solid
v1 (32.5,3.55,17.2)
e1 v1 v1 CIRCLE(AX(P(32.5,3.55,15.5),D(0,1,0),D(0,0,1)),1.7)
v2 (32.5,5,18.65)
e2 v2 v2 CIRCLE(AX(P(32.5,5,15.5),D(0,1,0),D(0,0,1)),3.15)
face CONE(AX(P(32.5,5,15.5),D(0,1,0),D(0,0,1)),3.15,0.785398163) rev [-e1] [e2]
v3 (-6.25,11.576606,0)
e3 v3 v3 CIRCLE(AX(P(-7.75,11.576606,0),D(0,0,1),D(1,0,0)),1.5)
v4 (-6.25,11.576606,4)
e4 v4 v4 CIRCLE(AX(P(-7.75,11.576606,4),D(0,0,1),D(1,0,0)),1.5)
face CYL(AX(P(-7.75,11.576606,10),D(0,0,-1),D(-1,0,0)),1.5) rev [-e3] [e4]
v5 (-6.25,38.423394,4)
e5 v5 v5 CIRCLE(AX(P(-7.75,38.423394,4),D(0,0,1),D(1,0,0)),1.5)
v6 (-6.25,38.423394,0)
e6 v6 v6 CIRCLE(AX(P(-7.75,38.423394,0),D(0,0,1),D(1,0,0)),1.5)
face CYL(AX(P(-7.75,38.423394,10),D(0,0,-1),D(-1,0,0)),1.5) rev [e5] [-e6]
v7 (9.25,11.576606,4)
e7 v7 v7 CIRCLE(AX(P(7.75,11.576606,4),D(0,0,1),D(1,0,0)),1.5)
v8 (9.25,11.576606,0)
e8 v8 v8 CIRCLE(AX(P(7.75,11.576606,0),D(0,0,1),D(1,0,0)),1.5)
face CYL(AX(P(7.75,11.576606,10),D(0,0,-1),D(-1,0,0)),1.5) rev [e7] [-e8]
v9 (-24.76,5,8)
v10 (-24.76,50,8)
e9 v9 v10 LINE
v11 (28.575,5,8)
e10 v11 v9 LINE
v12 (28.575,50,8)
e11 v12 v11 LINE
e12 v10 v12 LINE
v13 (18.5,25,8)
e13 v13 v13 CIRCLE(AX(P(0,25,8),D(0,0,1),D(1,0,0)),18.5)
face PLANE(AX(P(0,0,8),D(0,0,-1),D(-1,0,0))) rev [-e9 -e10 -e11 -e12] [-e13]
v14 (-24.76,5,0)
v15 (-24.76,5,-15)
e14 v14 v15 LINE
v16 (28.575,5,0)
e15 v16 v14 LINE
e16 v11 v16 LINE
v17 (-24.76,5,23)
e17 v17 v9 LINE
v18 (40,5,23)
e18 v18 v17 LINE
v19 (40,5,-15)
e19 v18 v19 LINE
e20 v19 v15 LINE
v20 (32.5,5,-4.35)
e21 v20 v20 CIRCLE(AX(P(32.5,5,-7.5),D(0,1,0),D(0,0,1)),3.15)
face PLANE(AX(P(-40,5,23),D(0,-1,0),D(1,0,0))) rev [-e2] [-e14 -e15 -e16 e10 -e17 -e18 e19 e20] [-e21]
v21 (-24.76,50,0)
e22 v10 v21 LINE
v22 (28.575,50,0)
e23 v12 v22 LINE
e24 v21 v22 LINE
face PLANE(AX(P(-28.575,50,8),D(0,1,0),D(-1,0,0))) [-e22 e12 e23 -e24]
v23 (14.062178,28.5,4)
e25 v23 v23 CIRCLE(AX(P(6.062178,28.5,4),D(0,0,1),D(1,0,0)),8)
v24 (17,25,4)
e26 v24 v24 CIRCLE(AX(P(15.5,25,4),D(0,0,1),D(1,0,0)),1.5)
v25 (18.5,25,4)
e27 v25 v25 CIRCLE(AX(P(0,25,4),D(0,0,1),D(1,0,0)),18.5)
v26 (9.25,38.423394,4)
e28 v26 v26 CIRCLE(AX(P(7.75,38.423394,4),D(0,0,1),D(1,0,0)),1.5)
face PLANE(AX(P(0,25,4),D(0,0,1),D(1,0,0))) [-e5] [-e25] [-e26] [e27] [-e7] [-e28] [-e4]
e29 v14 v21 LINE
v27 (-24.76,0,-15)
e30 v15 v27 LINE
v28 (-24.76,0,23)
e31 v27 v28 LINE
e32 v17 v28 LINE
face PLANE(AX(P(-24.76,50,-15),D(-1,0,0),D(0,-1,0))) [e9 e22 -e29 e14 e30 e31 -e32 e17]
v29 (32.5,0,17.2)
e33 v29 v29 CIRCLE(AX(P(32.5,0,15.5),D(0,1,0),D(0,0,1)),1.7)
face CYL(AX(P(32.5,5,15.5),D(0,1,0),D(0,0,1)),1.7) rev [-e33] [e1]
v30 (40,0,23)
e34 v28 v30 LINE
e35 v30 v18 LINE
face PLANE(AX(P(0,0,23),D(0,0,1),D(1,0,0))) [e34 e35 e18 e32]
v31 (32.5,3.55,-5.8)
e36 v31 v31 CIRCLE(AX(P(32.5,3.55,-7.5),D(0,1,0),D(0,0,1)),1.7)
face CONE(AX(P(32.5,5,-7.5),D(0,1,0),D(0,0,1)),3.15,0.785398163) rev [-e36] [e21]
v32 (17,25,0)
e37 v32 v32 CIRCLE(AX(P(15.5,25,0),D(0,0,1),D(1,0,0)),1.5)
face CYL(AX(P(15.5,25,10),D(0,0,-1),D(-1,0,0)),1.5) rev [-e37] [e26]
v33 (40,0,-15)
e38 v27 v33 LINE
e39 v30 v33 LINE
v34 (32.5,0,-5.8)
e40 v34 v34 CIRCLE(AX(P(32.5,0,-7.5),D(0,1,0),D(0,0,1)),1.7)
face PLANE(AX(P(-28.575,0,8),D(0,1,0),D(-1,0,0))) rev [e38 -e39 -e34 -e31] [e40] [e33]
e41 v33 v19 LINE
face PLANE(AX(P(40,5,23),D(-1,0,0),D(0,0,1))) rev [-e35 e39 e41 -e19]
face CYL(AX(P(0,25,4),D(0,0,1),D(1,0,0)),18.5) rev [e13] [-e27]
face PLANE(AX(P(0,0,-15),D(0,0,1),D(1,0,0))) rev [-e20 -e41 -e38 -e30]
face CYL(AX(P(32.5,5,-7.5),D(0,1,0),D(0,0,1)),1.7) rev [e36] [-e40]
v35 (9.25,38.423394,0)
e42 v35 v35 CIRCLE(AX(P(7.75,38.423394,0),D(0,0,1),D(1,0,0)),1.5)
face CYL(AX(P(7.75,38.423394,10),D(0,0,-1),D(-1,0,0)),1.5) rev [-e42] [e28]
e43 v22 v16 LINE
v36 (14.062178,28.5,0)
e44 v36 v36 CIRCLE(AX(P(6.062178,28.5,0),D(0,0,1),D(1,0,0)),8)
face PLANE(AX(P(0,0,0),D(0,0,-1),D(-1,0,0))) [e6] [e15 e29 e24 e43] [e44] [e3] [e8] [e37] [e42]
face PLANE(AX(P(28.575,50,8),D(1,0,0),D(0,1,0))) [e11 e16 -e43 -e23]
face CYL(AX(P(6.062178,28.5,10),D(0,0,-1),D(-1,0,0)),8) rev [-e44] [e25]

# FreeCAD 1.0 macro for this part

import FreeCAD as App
import Part
import Sketcher
Q = App.Units.Quantity


def add_polygon(sketch, points):
    """Adds a closed chain of lines whose ends are joined by coincident constraints."""
    first, n = sketch.GeometryCount, len(points)
    for a, b in zip(points, points[1:] + points[:1]):
        sketch.addGeometry(Part.LineSegment(App.Vector(*a, 0), App.Vector(*b, 0)), False)
    for i in range(n):
        sketch.addConstraint(Sketcher.Constraint("Coincident", first + i, 2, first + (i + 1) % n, 1))

doc = App.newDocument("Part")
body = doc.addObject("PartDesign::Body", "Body")

# Sketch on XY plane
sketch1 = body.newObject("Sketcher::SketchObject", "Sketch")
sketch1.AttachmentSupport = (doc.getObject("XY_Plane"), [""])
sketch1.MapMode = "FlatFace"
add_polygon(sketch1, [(-28.575, 50), (-28.575, 0), (28.575, 0), (28.575, 50)])  # lines 0-3
sketch1.addConstraint(Sketcher.Constraint("Vertical", 0))
sketch1.addConstraint(Sketcher.Constraint("Horizontal", 1))
sketch1.addConstraint(Sketcher.Constraint("Vertical", 2))
sketch1.addConstraint(Sketcher.Constraint("Horizontal", 3))
sketch1.addConstraint(Sketcher.Constraint("Symmetric", 0, 2, 1, 2, -1, 1))
sketch1.addConstraint(Sketcher.Constraint("DistanceY", 0, 2, 0, 1, Q("50 mm")))
sketch1.addConstraint(Sketcher.Constraint("DistanceX", 1, 1, 1, 2, Q("57.15 mm")))
pad1 = body.newObject("PartDesign::Pad", "Pad")
pad1.Profile = sketch1
pad1.Length = 8

# Sketch on XY plane
sketch2 = body.newObject("Sketcher::SketchObject", "Sketch001")
sketch2.AttachmentSupport = (doc.getObject("XY_Plane"), [""])
sketch2.MapMode = "FlatFace"
sketch2.addGeometry(Part.Circle(App.Vector(-7.75, 38.423394, 0), App.Vector(0, 0, 1), 1.5), False)
sketch2.addGeometry(Part.Circle(App.Vector(7.75, 38.423394, 0), App.Vector(0, 0, 1), 1.5), False)
sketch2.addGeometry(Part.Circle(App.Vector(-7.75, 11.576606, 0), App.Vector(0, 0, 1), 1.5), False)
sketch2.addGeometry(Part.Circle(App.Vector(7.75, 11.576606, 0), App.Vector(0, 0, 1), 1.5), False)
sketch2.addGeometry(Part.Circle(App.Vector(15.5, 25, 0), App.Vector(0, 0, 1), 1.5), False)
sketch2.addGeometry(Part.Circle(App.Vector(6.062178, 28.5, 0), App.Vector(0, 0, 1), 8), False)
sketch2.addConstraint(Sketcher.Constraint("Equal", 0, 1))
sketch2.addConstraint(Sketcher.Constraint("Equal", 1, 2))
sketch2.addConstraint(Sketcher.Constraint("Equal", 2, 3))
sketch2.addConstraint(Sketcher.Constraint("Equal", 3, 4))
sketch2.addConstraint(Sketcher.Constraint("Symmetric", 0, 3, 1, 3, -2))
sketch2.addConstraint(Sketcher.Constraint("Symmetric", 2, 3, 3, 3, -2))
sketch2.addConstraint(Sketcher.Constraint("Vertical", 0, 3, 2, 3))
sketch2.addConstraint(Sketcher.Constraint("Diameter", 0, Q("3 mm")))
sketch2.addConstraint(Sketcher.Constraint("Diameter", 5, Q("16 mm")))
sketch2.addConstraint(Sketcher.Constraint("DistanceY", -1, 1, 4, 3, Q("25 mm")))
sketch2.addConstraint(Sketcher.Constraint("DistanceX", -1, 1, 4, 3, Q("15.5 mm")))
sketch2.addConstraint(Sketcher.Constraint("DistanceY", -1, 1, 5, 3, Q("28.5 mm")))
sketch2.addConstraint(Sketcher.Constraint("DistanceX", 0, 3, 1, 3, Q("15.5 mm")))
sketch2.addConstraint(Sketcher.Constraint("DistanceY", -1, 1, 0, 3, Q("38.423394 mm")))
sketch2.addConstraint(Sketcher.Constraint("DistanceY", -1, 1, 2, 3, Q("11.576606 mm")))
sketch2.addConstraint(Sketcher.Constraint("DistanceX", -1, 1, 5, 3, Q("6.062178 mm")))
pocket1 = body.newObject("PartDesign::Pocket", "Pocket")
pocket1.Profile = sketch2
pocket1.Length = 10
pocket1.Reversed = True

# Sketch on XY plane
sketch3 = body.newObject("Sketcher::SketchObject", "Sketch002")
sketch3.AttachmentSupport = (doc.getObject("XY_Plane"), [""])
sketch3.MapMode = "FlatFace"
sketch3.AttachmentOffset = App.Placement(App.Vector(0, 0, 8), App.Rotation())
sketch3.addGeometry(Part.Circle(App.Vector(0, 25, 0), App.Vector(0, 0, 1), 18.5), False)
sketch3.addConstraint(Sketcher.Constraint("PointOnObject", 0, 3, -2))
sketch3.addConstraint(Sketcher.Constraint("Diameter", 0, Q("37 mm")))
sketch3.addConstraint(Sketcher.Constraint("DistanceY", -1, 1, 0, 3, Q("25 mm")))
pocket2 = body.newObject("PartDesign::Pocket", "Pocket001")
pocket2.Profile = sketch3
pocket2.Length = 4

# Sketch on XY plane
sketch4 = body.newObject("Sketcher::SketchObject", "Sketch003")
sketch4.AttachmentSupport = (doc.getObject("XY_Plane"), [""])
sketch4.MapMode = "FlatFace"
sketch4.AttachmentOffset = App.Placement(App.Vector(0, 0, 8), App.Rotation())
add_polygon(sketch4, [(-40, 5), (-40, 0), (40, 0), (40, 5)])  # lines 0-3
sketch4.addConstraint(Sketcher.Constraint("Vertical", 0))
sketch4.addConstraint(Sketcher.Constraint("Horizontal", 1))
sketch4.addConstraint(Sketcher.Constraint("Vertical", 2))
sketch4.addConstraint(Sketcher.Constraint("Horizontal", 3))
sketch4.addConstraint(Sketcher.Constraint("Symmetric", 0, 2, 1, 2, -1, 1))
sketch4.addConstraint(Sketcher.Constraint("DistanceX", 1, 1, 1, 2, Q("80 mm")))
sketch4.addConstraint(Sketcher.Constraint("DistanceY", 0, 2, 0, 1, Q("5 mm")))
pad2 = body.newObject("PartDesign::Pad", "Pad001")
pad2.Profile = sketch4
pad2.Type = "TwoLengths"
pad2.Length = 15
pad2.Length2 = 23

# Sketch on XZ plane
sketch5 = body.newObject("Sketcher::SketchObject", "Sketch004")
sketch5.AttachmentSupport = (doc.getObject("XZ_Plane"), [""])
sketch5.MapMode = "FlatFace"
sketch5.AttachmentOffset = App.Placement(App.Vector(0, 0, -5), App.Rotation())
sketch5.addGeometry(Part.Circle(App.Vector(-32.5, -7.5, 0), App.Vector(0, 0, 1), 1.7), False)
sketch5.addGeometry(Part.Circle(App.Vector(-32.5, 15.5, 0), App.Vector(0, 0, 1), 1.7), False)
sketch5.addGeometry(Part.Circle(App.Vector(32.5, 15.5, 0), App.Vector(0, 0, 1), 1.7), False)
sketch5.addGeometry(Part.Circle(App.Vector(32.5, -7.5, 0), App.Vector(0, 0, 1), 1.7), False)
sketch5.addConstraint(Sketcher.Constraint("Equal", 0, 1))
sketch5.addConstraint(Sketcher.Constraint("Equal", 1, 2))
sketch5.addConstraint(Sketcher.Constraint("Equal", 2, 3))
sketch5.addConstraint(Sketcher.Constraint("Symmetric", 1, 3, 2, 3, -2))
sketch5.addConstraint(Sketcher.Constraint("Symmetric", 0, 3, 3, 3, -2))
sketch5.addConstraint(Sketcher.Constraint("Vertical", 0, 3, 1, 3))
sketch5.addConstraint(Sketcher.Constraint("Diameter", 0, Q("3.4 mm")))
sketch5.addConstraint(Sketcher.Constraint("DistanceY", 0, 3, 1, 3, Q("23 mm")))
sketch5.addConstraint(Sketcher.Constraint("DistanceX", 1, 3, 2, 3, Q("65 mm")))
sketch5.addConstraint(Sketcher.Constraint("DistanceY", 0, 3, -1, 1, Q("7.5 mm")))
doc.recompute()
hole = body.newObject("PartDesign::Hole", "Hole")
hole.Profile = sketch5
hole.ThreadType = "None"
hole.Diameter = 3.4
hole.DepthType = "ThroughAll"
hole.HoleCutType = "Countersink"
hole.HoleCutDiameter = 6.3
hole.HoleCutCountersinkAngle = 90
hole.Reversed = True

# Sketch on XZ plane
sketch6 = body.newObject("Sketcher::SketchObject", "Sketch005")
sketch6.AttachmentSupport = (doc.getObject("XZ_Plane"), [""])
sketch6.MapMode = "FlatFace"
sketch6.AttachmentOffset = App.Placement(App.Vector(0, 0, -5), App.Rotation())
add_polygon(sketch6, [(-40, -15), (-40, 23), (-24.76, 23), (-24.76, -15)])  # lines 0-3
sketch6.addConstraint(Sketcher.Constraint("Vertical", 0))
sketch6.addConstraint(Sketcher.Constraint("Horizontal", 1))
sketch6.addConstraint(Sketcher.Constraint("Vertical", 2))
sketch6.addConstraint(Sketcher.Constraint("Horizontal", 3))
sketch6.addConstraint(Sketcher.Constraint("DistanceY", 0, 1, 0, 2, Q("38 mm")))
sketch6.addConstraint(Sketcher.Constraint("DistanceX", 0, 2, -1, 1, Q("40 mm")))
sketch6.addConstraint(Sketcher.Constraint("DistanceY", -1, 1, 0, 2, Q("23 mm")))
sketch6.addConstraint(Sketcher.Constraint("DistanceX", 1, 1, 1, 2, Q("15.24 mm")))
pocket3 = body.newObject("PartDesign::Pocket", "Pocket002")
pocket3.Profile = sketch6
pocket3.Type = "UpToFirst"
pocket3.Reversed = True

# Sketch on XZ plane
sketch7 = body.newObject("Sketcher::SketchObject", "Sketch006")
sketch7.AttachmentSupport = (doc.getObject("XZ_Plane"), [""])
sketch7.MapMode = "FlatFace"
sketch7.AttachmentOffset = App.Placement(App.Vector(0, 0, -5), App.Rotation())
add_polygon(sketch7, [(-40, -15), (-40, 23), (-24.76, 23), (-24.76, -15)])  # lines 0-3
sketch7.addConstraint(Sketcher.Constraint("Vertical", 0))
sketch7.addConstraint(Sketcher.Constraint("Horizontal", 1))
sketch7.addConstraint(Sketcher.Constraint("Vertical", 2))
sketch7.addConstraint(Sketcher.Constraint("Horizontal", 3))
sketch7.addConstraint(Sketcher.Constraint("DistanceY", 0, 1, 0, 2, Q("38 mm")))
sketch7.addConstraint(Sketcher.Constraint("DistanceX", 0, 2, -1, 1, Q("40 mm")))
sketch7.addConstraint(Sketcher.Constraint("DistanceY", -1, 1, 0, 2, Q("23 mm")))
sketch7.addConstraint(Sketcher.Constraint("DistanceX", 1, 1, 1, 2, Q("15.24 mm")))
pocket4 = body.newObject("PartDesign::Pocket", "Pocket003")
pocket4.Profile = sketch7
pocket4.Length = 45

doc.recompute()
